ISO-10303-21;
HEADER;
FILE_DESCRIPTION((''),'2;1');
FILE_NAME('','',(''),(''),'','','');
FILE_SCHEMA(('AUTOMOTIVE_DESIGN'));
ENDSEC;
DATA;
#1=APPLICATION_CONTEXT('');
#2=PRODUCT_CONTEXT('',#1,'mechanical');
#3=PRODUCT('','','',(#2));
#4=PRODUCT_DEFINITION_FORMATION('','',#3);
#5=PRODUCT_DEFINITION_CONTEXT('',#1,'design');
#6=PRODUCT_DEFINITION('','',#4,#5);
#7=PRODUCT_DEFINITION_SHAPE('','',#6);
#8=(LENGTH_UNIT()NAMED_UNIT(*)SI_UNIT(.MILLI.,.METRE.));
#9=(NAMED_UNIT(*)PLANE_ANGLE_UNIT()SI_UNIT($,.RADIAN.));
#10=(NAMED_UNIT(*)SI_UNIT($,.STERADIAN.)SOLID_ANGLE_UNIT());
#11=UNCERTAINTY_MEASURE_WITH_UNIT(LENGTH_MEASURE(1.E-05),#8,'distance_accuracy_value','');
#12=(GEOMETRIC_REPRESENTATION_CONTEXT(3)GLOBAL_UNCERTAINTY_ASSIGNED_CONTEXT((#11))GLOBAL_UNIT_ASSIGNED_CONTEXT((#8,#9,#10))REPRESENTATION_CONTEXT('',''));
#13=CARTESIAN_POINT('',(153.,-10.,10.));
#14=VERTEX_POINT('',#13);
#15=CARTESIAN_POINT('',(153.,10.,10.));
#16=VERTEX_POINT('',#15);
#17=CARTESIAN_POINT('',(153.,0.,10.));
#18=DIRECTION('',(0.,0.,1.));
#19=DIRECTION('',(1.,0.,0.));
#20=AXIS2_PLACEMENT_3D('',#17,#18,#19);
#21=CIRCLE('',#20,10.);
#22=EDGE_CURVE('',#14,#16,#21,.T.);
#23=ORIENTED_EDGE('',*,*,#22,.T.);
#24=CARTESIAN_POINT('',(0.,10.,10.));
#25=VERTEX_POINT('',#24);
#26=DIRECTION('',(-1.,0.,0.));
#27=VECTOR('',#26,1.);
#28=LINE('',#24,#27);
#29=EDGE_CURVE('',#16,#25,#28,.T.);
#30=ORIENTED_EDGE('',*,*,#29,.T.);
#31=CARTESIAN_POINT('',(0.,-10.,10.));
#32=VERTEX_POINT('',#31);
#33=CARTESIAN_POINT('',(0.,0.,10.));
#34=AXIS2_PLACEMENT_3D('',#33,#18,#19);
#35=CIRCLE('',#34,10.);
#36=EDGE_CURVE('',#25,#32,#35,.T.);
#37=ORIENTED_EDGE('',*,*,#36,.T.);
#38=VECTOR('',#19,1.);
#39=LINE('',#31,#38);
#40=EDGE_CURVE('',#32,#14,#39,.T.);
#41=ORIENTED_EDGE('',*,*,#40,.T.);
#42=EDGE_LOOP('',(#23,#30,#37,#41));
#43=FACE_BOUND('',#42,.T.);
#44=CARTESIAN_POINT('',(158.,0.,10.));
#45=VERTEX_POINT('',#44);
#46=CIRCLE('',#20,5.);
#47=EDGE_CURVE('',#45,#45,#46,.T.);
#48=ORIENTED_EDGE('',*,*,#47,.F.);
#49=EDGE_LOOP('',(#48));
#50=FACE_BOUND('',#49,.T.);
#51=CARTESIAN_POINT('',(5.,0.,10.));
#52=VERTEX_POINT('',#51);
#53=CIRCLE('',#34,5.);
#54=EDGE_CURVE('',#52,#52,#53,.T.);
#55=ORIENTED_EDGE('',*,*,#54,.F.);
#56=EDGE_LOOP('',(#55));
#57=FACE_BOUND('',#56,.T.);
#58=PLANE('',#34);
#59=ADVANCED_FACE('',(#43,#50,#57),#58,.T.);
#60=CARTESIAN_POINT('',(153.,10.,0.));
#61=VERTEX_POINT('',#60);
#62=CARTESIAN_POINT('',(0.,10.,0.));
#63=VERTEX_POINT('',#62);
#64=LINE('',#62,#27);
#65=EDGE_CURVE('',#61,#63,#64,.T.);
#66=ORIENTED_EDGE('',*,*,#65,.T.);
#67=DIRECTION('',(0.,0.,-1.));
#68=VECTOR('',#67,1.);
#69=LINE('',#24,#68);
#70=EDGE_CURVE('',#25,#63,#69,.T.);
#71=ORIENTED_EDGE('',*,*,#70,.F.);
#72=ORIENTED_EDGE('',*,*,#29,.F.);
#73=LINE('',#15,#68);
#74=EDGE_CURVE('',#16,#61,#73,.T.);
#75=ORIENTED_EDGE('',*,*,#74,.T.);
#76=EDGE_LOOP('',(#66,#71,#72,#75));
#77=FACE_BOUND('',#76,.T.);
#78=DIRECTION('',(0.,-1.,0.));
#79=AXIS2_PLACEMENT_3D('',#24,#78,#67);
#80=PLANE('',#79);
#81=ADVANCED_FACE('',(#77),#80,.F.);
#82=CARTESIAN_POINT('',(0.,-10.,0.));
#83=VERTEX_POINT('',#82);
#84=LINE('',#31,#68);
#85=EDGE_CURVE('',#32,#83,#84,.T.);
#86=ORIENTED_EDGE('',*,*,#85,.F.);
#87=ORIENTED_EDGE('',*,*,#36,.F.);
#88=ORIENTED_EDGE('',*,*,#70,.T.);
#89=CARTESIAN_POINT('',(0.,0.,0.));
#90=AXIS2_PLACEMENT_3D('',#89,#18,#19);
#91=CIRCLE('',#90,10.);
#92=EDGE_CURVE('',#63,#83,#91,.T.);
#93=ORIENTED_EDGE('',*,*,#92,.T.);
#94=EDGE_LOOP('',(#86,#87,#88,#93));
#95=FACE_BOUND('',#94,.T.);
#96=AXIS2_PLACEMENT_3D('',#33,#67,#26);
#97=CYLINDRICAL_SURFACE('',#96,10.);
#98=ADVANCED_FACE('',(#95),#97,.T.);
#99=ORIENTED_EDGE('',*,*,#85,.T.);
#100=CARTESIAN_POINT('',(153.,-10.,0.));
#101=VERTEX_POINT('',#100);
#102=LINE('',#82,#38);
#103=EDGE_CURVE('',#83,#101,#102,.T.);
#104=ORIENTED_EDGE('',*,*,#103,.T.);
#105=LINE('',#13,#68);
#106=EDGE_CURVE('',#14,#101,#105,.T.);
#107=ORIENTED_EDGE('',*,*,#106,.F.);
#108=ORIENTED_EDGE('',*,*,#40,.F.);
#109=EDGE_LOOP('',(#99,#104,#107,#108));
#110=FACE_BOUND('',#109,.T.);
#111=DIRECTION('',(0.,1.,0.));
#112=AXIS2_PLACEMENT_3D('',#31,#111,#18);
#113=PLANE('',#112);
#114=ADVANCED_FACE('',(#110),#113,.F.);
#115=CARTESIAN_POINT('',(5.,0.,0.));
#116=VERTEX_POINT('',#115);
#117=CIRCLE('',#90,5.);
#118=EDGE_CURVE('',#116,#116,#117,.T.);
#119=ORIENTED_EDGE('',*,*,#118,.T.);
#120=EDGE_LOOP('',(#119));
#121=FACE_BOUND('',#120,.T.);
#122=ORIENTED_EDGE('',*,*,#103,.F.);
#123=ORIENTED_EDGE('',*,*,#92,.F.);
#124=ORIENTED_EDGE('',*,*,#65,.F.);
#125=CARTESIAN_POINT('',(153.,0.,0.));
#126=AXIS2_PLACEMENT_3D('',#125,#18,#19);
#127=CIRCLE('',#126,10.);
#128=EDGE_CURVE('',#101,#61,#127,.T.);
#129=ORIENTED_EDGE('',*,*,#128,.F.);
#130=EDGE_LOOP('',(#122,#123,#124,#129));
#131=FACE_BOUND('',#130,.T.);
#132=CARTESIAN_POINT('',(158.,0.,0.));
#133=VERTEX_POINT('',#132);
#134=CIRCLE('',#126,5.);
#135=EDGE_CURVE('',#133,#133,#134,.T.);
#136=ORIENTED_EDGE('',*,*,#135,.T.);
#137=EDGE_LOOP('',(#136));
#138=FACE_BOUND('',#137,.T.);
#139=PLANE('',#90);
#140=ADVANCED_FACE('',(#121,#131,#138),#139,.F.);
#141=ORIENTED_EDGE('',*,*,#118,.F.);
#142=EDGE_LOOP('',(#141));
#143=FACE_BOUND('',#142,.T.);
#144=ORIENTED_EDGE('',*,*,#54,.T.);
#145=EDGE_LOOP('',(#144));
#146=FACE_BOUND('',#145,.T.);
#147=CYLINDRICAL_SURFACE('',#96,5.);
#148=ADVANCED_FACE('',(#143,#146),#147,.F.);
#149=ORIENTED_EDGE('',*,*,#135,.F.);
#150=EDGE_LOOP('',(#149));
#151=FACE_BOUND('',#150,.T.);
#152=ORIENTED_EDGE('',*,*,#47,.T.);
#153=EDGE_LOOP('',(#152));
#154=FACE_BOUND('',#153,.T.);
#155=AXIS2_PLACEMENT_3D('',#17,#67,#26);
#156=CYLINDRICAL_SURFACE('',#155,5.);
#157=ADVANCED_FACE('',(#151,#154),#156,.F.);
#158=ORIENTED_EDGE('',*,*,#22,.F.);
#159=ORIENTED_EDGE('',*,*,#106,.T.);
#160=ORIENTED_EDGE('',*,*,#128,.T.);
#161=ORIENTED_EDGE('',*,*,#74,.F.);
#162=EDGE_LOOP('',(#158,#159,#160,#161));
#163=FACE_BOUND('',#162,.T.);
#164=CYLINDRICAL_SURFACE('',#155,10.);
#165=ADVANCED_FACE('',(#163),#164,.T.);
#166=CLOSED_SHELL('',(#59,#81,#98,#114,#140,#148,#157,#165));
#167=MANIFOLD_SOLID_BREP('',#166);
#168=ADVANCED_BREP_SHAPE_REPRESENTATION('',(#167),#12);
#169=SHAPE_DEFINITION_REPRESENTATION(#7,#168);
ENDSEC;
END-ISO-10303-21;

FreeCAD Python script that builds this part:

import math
import FreeCAD as App
import Part
import Sketcher
from FreeCAD import Vector

doc = App.newDocument("Part")
body = doc.addObject("PartDesign::Body", "Body")

# Sketch on XY plane
sketch1 = body.newObject("Sketcher::SketchObject", "Sketch")
sketch1.AttachmentSupport = (doc.getObject("XY_Plane"), [""])
sketch1.MapMode = "FlatFace"
sketch1.addGeometry([
    Part.LineSegment(Vector(153, 10, 0), Vector(0, 10, 0)),  # 0
    Part.ArcOfCircle(Part.Circle(Vector(0, 0, 0), Vector(0, 0, 1), 10), math.radians(90), math.radians(270)),  # 1
    Part.LineSegment(Vector(0, -10, 0), Vector(153, -10, 0)),  # 2
    Part.ArcOfCircle(Part.Circle(Vector(153, 0, 0), Vector(0, 0, 1), 10), math.radians(-90), math.radians(90)),  # 3
    Part.Circle(Vector(153, 0, 0), Vector(0, 0, 1), 5),  # 4
    Part.Circle(Vector(0, 0, 0), Vector(0, 0, 1), 5),  # 5
], False)
sketch1.addConstraint([
    Sketcher.Constraint("Tangent", 0, 2, 1, 1),
    Sketcher.Constraint("Tangent", 1, 2, 2, 1),
    Sketcher.Constraint("Tangent", 2, 2, 3, 1),
    Sketcher.Constraint("Tangent", 3, 2, 0, 1),
    Sketcher.Constraint("Horizontal", 0),
    Sketcher.Constraint("Horizontal", 2),
    Sketcher.Constraint("Coincident", 1, 3, -1, 1),
    Sketcher.Constraint("Coincident", 5, 3, -1, 1),
    Sketcher.Constraint("Coincident", 4, 3, 3, 3),
    Sketcher.Constraint("Equal", 4, 5),
    Sketcher.Constraint("Diameter", 4, 10.0),
    Sketcher.Constraint("Radius", 1, 10.0),
    Sketcher.Constraint("DistanceX", 0, 2, 0, 1, 153.0),
])
pad1 = body.newObject("PartDesign::Pad", "Pad")
pad1.Profile = sketch1
pad1.Length = 10

doc.recompute()
